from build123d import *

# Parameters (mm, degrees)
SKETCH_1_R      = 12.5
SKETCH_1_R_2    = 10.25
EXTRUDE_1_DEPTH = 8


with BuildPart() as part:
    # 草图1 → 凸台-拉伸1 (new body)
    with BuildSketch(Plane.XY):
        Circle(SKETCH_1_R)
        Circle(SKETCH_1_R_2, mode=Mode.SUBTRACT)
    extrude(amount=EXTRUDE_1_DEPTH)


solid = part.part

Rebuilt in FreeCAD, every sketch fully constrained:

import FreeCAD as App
import Part
import Sketcher

doc = App.newDocument("Part")
params = doc.addObject("Spreadsheet::Sheet", "Params")
for row, (alias, value) in enumerate([
    ("sketch1_diameter", "25 mm"),
    ("sketch1_diameter2", "20.5 mm"),
    ("pad1_length", "8 mm"),
], start=1):
    params.set(f"A{row}", alias)
    params.set(f"B{row}", "=" + value)
    params.setAlias(f"B{row}", alias)

body = doc.addObject("PartDesign::Body", "Body")

# Sketch on XY plane
sketch1 = body.newObject("Sketcher::SketchObject", "Sketch")
sketch1.AttachmentSupport = (doc.getObject("XY_Plane"), [""])
sketch1.MapMode = "FlatFace"
sketch1.addGeometry([
    Part.Circle(App.Vector(0, 0, 0), App.Vector(0, 0, 1), 12),
    Part.Circle(App.Vector(0, 0, 0), App.Vector(0, 0, 1), 10),
], False)
sketch1.addConstraint([
    Sketcher.Constraint("Coincident", 0, 3, -1, 1),
    Sketcher.Constraint("Coincident", 1, 3, -1, 1),
    Sketcher.Constraint("Diameter", 0, 25.0),
    Sketcher.Constraint("Diameter", 1, 20.5),
])
sketch1.setExpression("Constraints[2]", "Params.sketch1_diameter")
sketch1.setExpression("Constraints[3]", "Params.sketch1_diameter2")
pad1 = body.newObject("PartDesign::Pad", "Pad")
pad1.Profile = sketch1
pad1.setExpression("Length", "Params.pad1_length")

doc.recompute()
